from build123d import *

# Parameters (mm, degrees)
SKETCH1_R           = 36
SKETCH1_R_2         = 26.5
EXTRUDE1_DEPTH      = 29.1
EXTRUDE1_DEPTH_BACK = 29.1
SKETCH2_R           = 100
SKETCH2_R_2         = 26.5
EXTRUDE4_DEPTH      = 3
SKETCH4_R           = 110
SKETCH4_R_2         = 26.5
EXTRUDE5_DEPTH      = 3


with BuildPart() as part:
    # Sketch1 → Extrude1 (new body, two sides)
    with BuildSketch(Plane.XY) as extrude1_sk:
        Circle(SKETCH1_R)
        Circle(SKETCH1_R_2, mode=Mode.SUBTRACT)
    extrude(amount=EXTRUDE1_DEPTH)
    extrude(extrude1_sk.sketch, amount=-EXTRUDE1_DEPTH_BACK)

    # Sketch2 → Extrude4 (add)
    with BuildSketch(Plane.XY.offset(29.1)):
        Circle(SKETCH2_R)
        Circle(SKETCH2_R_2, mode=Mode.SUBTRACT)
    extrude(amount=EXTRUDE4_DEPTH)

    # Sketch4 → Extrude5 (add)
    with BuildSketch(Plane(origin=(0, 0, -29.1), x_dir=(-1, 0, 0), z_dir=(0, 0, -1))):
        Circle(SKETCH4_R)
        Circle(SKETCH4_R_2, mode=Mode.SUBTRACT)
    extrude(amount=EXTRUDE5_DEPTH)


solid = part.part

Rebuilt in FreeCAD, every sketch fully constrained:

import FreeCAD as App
import Part
import Sketcher
from FreeCAD import Vector
Q = App.Units.Quantity

doc = App.newDocument("Part")
params = doc.addObject("Spreadsheet::Sheet", "Params")
for row, (alias, value) in enumerate([
    ("sketch1_diameter", "72 mm"),
    ("sketch1_diameter2", "53 mm"),
    ("pad1_length", "29.1 mm"),
    ("pad1_length2", "29.1 mm"),
    ("sketch2_diameter", "200 mm"),
    ("sketch2_diameter2", "53 mm"),
    ("pad2_length", "3 mm"),
    ("sketch3_diameter", "220 mm"),
    ("sketch3_diameter2", "53 mm"),
    ("pad3_length", "3 mm"),
], start=1):
    params.set(f"A{row}", alias)
    params.set(f"B{row}", "=" + value)
    params.setAlias(f"B{row}", alias)

body = doc.addObject("PartDesign::Body", "Body")

# Sketch on XY plane
sketch1 = doc.addObject("Sketcher::SketchObject", "Sketch")
body.addObject(sketch1)
sketch1.AttachmentSupport = (doc.XY_Plane, [""])
sketch1.MapMode = "FlatFace"
sketch1.addGeometry([
    Part.Circle(Vector(0, 0, 0), Vector(0, 0, 1), 36),
    Part.Circle(Vector(0, 0, 0), Vector(0, 0, 1), 26),
], False)
sketch1.addConstraint([
    Sketcher.Constraint("Coincident", 0, 3, -1, 1),
    Sketcher.Constraint("Coincident", 1, 3, -1, 1),
    Sketcher.Constraint("Diameter", 0, Q("72 mm")),
    Sketcher.Constraint("Diameter", 1, Q("53 mm")),
])
sketch1.setExpression("Constraints[2]", "Params.sketch1_diameter")
sketch1.setExpression("Constraints[3]", "Params.sketch1_diameter2")
pad1 = doc.addObject("PartDesign::Pad", "Pad")
body.addObject(pad1)
pad1.Profile = sketch1
pad1.Type = "TwoLengths"
pad1.setExpression("Length", "Params.pad1_length")
pad1.setExpression("Length2", "Params.pad1_length2")

# Sketch on XY plane
sketch2 = doc.addObject("Sketcher::SketchObject", "Sketch001")
body.addObject(sketch2)
sketch2.AttachmentSupport = (doc.XY_Plane, [""])
sketch2.MapMode = "FlatFace"
sketch2.AttachmentOffset = App.Placement(Vector(0, 0, 29.1), App.Rotation())
sketch2.addGeometry([
    Part.Circle(Vector(0, 0, 0), Vector(0, 0, 1), 100),
    Part.Circle(Vector(0, 0, 0), Vector(0, 0, 1), 26),
], False)
sketch2.addConstraint([
    Sketcher.Constraint("Coincident", 0, 3, -1, 1),
    Sketcher.Constraint("Coincident", 1, 3, -1, 1),
    Sketcher.Constraint("Diameter", 0, Q("200 mm")),
    Sketcher.Constraint("Diameter", 1, Q("53 mm")),
])
sketch2.setExpression("Constraints[2]", "Params.sketch2_diameter")
sketch2.setExpression("Constraints[3]", "Params.sketch2_diameter2")
pad2 = doc.addObject("PartDesign::Pad", "Pad001")
body.addObject(pad2)
pad2.Profile = sketch2
pad2.setExpression("Length", "Params.pad2_length")

# Sketch on XY plane
sketch3 = doc.addObject("Sketcher::SketchObject", "Sketch002")
body.addObject(sketch3)
sketch3.AttachmentSupport = (doc.XY_Plane, [""])
sketch3.MapMode = "FlatFace"
sketch3.AttachmentOffset = App.Placement(Vector(0, 0, -29.1), App.Rotation())
sketch3.addGeometry([
    Part.Circle(Vector(0, 0, 0), Vector(0, 0, 1), 110),
    Part.Circle(Vector(0, 0, 0), Vector(0, 0, 1), 26),
], False)
sketch3.addConstraint([
    Sketcher.Constraint("Coincident", 0, 3, -1, 1),
    Sketcher.Constraint("Coincident", 1, 3, -1, 1),
    Sketcher.Constraint("Diameter", 0, Q("220 mm")),
    Sketcher.Constraint("Diameter", 1, Q("53 mm")),
])
sketch3.setExpression("Constraints[2]", "Params.sketch3_diameter")
sketch3.setExpression("Constraints[3]", "Params.sketch3_diameter2")
pad3 = doc.addObject("PartDesign::Pad", "Pad002")
body.addObject(pad3)
pad3.Profile = sketch3
pad3.setExpression("Length", "Params.pad3_length")
pad3.Reversed = True

doc.recompute()
